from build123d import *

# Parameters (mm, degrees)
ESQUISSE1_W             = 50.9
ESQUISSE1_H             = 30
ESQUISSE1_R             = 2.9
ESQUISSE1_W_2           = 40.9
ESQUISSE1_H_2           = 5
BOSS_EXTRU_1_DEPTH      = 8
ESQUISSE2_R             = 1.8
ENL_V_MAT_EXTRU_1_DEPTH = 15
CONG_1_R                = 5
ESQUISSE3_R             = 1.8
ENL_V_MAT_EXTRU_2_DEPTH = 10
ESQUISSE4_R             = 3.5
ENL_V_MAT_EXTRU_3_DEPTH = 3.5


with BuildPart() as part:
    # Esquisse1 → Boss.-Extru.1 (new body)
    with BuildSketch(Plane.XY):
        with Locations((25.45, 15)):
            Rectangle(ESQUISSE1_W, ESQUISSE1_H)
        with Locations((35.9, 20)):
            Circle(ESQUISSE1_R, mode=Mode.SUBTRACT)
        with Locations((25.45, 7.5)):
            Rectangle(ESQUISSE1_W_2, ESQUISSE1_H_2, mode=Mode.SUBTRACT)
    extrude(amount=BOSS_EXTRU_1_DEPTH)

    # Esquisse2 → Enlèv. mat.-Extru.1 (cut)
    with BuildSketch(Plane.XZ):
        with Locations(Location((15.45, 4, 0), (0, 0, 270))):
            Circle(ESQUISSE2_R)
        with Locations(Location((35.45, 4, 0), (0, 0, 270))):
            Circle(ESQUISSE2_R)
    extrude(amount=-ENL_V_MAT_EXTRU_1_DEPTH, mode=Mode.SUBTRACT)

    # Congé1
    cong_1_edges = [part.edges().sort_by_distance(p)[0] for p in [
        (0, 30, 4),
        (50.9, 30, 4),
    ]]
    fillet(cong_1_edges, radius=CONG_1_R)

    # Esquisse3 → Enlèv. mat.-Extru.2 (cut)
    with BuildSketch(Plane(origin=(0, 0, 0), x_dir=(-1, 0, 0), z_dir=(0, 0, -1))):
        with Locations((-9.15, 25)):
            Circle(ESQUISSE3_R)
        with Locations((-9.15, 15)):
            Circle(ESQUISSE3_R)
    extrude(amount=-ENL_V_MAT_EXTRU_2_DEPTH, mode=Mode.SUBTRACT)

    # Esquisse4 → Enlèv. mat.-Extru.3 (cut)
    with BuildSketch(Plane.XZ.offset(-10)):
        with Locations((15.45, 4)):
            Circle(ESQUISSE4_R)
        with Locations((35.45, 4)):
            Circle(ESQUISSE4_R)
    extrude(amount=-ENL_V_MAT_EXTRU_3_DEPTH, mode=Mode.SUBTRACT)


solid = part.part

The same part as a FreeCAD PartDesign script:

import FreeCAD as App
import Part
import Sketcher


def edges_at(feature, points):
    """Names of the edges that pass closest to the given points."""
    edges = feature.Shape.Edges
    near = lambda p: min(range(len(edges)), key=lambda i: edges[i].distToShape(Part.Vertex(*p))[0])
    return sorted({f"Edge{near(p) + 1}" for p in points})

doc = App.newDocument("Part")
body = doc.addObject("PartDesign::Body", "Body")

# Sketch on XY plane
sketch1 = body.newObject("Sketcher::SketchObject", "Sketch")
sketch1.AttachmentSupport = (doc.getObject("XY_Plane"), [""])
sketch1.MapMode = "FlatFace"
sketch1.addGeometry(Part.LineSegment(App.Vector(0, 30, 0), App.Vector(0, 0, 0)), False)
sketch1.addGeometry(Part.LineSegment(App.Vector(0, 0, 0), App.Vector(50.9, 0, 0)), False)
sketch1.addGeometry(Part.LineSegment(App.Vector(50.9, 0, 0), App.Vector(50.9, 30, 0)), False)
sketch1.addGeometry(Part.LineSegment(App.Vector(50.9, 30, 0), App.Vector(0, 30, 0)), False)
sketch1.addGeometry(Part.LineSegment(App.Vector(45.9, 5, 0), App.Vector(5, 5, 0)), False)
sketch1.addGeometry(Part.LineSegment(App.Vector(5, 5, 0), App.Vector(5, 10, 0)), False)
sketch1.addGeometry(Part.LineSegment(App.Vector(5, 10, 0), App.Vector(45.9, 10, 0)), False)
sketch1.addGeometry(Part.LineSegment(App.Vector(45.9, 10, 0), App.Vector(45.9, 5, 0)), False)
sketch1.addGeometry(Part.Circle(App.Vector(35.9, 20, 0), App.Vector(0, 0, 1), 2.9), False)
sketch1.addConstraint(Sketcher.Constraint("Coincident", 0, 2, 1, 1))
sketch1.addConstraint(Sketcher.Constraint("Coincident", 1, 2, 2, 1))
sketch1.addConstraint(Sketcher.Constraint("Coincident", 2, 2, 3, 1))
sketch1.addConstraint(Sketcher.Constraint("Coincident", 3, 2, 0, 1))
sketch1.addConstraint(Sketcher.Constraint("Coincident", 4, 2, 5, 1))
sketch1.addConstraint(Sketcher.Constraint("Coincident", 5, 2, 6, 1))
sketch1.addConstraint(Sketcher.Constraint("Coincident", 6, 2, 7, 1))
sketch1.addConstraint(Sketcher.Constraint("Coincident", 7, 2, 4, 1))
sketch1.addConstraint(Sketcher.Constraint("Vertical", 0))
sketch1.addConstraint(Sketcher.Constraint("Horizontal", 1))
sketch1.addConstraint(Sketcher.Constraint("Vertical", 2))
sketch1.addConstraint(Sketcher.Constraint("Horizontal", 3))
sketch1.addConstraint(Sketcher.Constraint("Horizontal", 4))
sketch1.addConstraint(Sketcher.Constraint("Vertical", 5))
sketch1.addConstraint(Sketcher.Constraint("Horizontal", 6))
sketch1.addConstraint(Sketcher.Constraint("Vertical", 7))
sketch1.addConstraint(Sketcher.Constraint("Coincident", 0, 2, -1, 1))
sketch1.addConstraint(Sketcher.Constraint("Diameter", 8, 5.8))
sketch1.addConstraint(Sketcher.Constraint("DistanceY", 0, 2, 0, 1, 30.0))
sketch1.addConstraint(Sketcher.Constraint("DistanceY", 5, 1, 5, 2, 5.0))
sketch1.addConstraint(Sketcher.Constraint("DistanceX", 1, 1, 1, 2, 50.9))
sketch1.addConstraint(Sketcher.Constraint("DistanceX", 4, 2, 4, 1, 40.9))
sketch1.addConstraint(Sketcher.Constraint("DistanceY", -1, 1, 8, 3, 20.0))
sketch1.addConstraint(Sketcher.Constraint("DistanceX", -1, 1, 4, 2, 5.0))
sketch1.addConstraint(Sketcher.Constraint("DistanceY", -1, 1, 4, 2, 5.0))
sketch1.addConstraint(Sketcher.Constraint("DistanceX", 8, 3, 1, 2, 15.0))
pad1 = body.newObject("PartDesign::Pad", "Pad")
pad1.Profile = sketch1
pad1.Length = 8

# Sketch on XZ plane
sketch2 = body.newObject("Sketcher::SketchObject", "Sketch001")
sketch2.AttachmentSupport = (doc.getObject("XZ_Plane"), [""])
sketch2.MapMode = "FlatFace"
sketch2.addGeometry(Part.Circle(App.Vector(15.45, 4, 0), App.Vector(0, 0, 1), 1.8), False)
sketch2.addGeometry(Part.Circle(App.Vector(35.45, 4, 0), App.Vector(0, 0, 1), 1.8), False)
sketch2.addConstraint(Sketcher.Constraint("Equal", 0, 1))
sketch2.addConstraint(Sketcher.Constraint("Horizontal", 0, 3, 1, 3))
sketch2.addConstraint(Sketcher.Constraint("Diameter", 0, 3.6))
sketch2.addConstraint(Sketcher.Constraint("DistanceY", -1, 1, 0, 3, 4.0))
sketch2.addConstraint(Sketcher.Constraint("DistanceX", 0, 3, 1, 3, 20.0))
sketch2.addConstraint(Sketcher.Constraint("DistanceX", -1, 1, 0, 3, 15.45))
pocket1 = body.newObject("PartDesign::Pocket", "Pocket")
pocket1.Profile = sketch2
pocket1.Length = 15
doc.recompute()

fillet = body.newObject("PartDesign::Fillet", "Fillet")
fillet.Base = (pocket1, edges_at(pocket1, [(0, 30, 4), (50.9, 30, 4)]))
fillet.Radius = 5

# Sketch on XY plane
sketch3 = body.newObject("Sketcher::SketchObject", "Sketch002")
sketch3.AttachmentSupport = (doc.getObject("XY_Plane"), [""])
sketch3.MapMode = "FlatFace"
sketch3.addGeometry(Part.Circle(App.Vector(9.15, 25, 0), App.Vector(0, 0, 1), 1.8), False)
sketch3.addGeometry(Part.Circle(App.Vector(9.15, 15, 0), App.Vector(0, 0, 1), 1.8), False)
sketch3.addConstraint(Sketcher.Constraint("Equal", 0, 1))
sketch3.addConstraint(Sketcher.Constraint("Vertical", 0, 3, 1, 3))
sketch3.addConstraint(Sketcher.Constraint("Diameter", 0, 3.6))
sketch3.addConstraint(Sketcher.Constraint("DistanceY", -1, 1, 0, 3, 25.0))
sketch3.addConstraint(Sketcher.Constraint("DistanceY", -1, 1, 1, 3, 15.0))
sketch3.addConstraint(Sketcher.Constraint("DistanceX", -1, 1, 0, 3, 9.15))
pocket2 = body.newObject("PartDesign::Pocket", "Pocket001")
pocket2.Profile = sketch3
pocket2.Length = 10
pocket2.Reversed = True

# Sketch on XZ plane
sketch4 = body.newObject("Sketcher::SketchObject", "Sketch003")
sketch4.AttachmentSupport = (doc.getObject("XZ_Plane"), [""])
sketch4.MapMode = "FlatFace"
sketch4.AttachmentOffset = App.Placement(App.Vector(0, 0, -10), App.Rotation())
sketch4.addGeometry(Part.Circle(App.Vector(15.45, 4, 0), App.Vector(0, 0, 1), 3.5), False)
sketch4.addGeometry(Part.Circle(App.Vector(35.45, 4, 0), App.Vector(0, 0, 1), 3.5), False)
sketch4.addConstraint(Sketcher.Constraint("Equal", 0, 1))
sketch4.addConstraint(Sketcher.Constraint("Horizontal", 0, 3, 1, 3))
sketch4.addConstraint(Sketcher.Constraint("Diameter", 0, 7.0))
sketch4.addConstraint(Sketcher.Constraint("DistanceY", -1, 1, 0, 3, 4.0))
sketch4.addConstraint(Sketcher.Constraint("DistanceX", 0, 3, 1, 3, 20.0))
sketch4.addConstraint(Sketcher.Constraint("DistanceX", -1, 1, 0, 3, 15.45))
pocket3 = body.newObject("PartDesign::Pocket", "Pocket002")
pocket3.Profile = sketch4
pocket3.Length = 3.5

doc.recompute()
